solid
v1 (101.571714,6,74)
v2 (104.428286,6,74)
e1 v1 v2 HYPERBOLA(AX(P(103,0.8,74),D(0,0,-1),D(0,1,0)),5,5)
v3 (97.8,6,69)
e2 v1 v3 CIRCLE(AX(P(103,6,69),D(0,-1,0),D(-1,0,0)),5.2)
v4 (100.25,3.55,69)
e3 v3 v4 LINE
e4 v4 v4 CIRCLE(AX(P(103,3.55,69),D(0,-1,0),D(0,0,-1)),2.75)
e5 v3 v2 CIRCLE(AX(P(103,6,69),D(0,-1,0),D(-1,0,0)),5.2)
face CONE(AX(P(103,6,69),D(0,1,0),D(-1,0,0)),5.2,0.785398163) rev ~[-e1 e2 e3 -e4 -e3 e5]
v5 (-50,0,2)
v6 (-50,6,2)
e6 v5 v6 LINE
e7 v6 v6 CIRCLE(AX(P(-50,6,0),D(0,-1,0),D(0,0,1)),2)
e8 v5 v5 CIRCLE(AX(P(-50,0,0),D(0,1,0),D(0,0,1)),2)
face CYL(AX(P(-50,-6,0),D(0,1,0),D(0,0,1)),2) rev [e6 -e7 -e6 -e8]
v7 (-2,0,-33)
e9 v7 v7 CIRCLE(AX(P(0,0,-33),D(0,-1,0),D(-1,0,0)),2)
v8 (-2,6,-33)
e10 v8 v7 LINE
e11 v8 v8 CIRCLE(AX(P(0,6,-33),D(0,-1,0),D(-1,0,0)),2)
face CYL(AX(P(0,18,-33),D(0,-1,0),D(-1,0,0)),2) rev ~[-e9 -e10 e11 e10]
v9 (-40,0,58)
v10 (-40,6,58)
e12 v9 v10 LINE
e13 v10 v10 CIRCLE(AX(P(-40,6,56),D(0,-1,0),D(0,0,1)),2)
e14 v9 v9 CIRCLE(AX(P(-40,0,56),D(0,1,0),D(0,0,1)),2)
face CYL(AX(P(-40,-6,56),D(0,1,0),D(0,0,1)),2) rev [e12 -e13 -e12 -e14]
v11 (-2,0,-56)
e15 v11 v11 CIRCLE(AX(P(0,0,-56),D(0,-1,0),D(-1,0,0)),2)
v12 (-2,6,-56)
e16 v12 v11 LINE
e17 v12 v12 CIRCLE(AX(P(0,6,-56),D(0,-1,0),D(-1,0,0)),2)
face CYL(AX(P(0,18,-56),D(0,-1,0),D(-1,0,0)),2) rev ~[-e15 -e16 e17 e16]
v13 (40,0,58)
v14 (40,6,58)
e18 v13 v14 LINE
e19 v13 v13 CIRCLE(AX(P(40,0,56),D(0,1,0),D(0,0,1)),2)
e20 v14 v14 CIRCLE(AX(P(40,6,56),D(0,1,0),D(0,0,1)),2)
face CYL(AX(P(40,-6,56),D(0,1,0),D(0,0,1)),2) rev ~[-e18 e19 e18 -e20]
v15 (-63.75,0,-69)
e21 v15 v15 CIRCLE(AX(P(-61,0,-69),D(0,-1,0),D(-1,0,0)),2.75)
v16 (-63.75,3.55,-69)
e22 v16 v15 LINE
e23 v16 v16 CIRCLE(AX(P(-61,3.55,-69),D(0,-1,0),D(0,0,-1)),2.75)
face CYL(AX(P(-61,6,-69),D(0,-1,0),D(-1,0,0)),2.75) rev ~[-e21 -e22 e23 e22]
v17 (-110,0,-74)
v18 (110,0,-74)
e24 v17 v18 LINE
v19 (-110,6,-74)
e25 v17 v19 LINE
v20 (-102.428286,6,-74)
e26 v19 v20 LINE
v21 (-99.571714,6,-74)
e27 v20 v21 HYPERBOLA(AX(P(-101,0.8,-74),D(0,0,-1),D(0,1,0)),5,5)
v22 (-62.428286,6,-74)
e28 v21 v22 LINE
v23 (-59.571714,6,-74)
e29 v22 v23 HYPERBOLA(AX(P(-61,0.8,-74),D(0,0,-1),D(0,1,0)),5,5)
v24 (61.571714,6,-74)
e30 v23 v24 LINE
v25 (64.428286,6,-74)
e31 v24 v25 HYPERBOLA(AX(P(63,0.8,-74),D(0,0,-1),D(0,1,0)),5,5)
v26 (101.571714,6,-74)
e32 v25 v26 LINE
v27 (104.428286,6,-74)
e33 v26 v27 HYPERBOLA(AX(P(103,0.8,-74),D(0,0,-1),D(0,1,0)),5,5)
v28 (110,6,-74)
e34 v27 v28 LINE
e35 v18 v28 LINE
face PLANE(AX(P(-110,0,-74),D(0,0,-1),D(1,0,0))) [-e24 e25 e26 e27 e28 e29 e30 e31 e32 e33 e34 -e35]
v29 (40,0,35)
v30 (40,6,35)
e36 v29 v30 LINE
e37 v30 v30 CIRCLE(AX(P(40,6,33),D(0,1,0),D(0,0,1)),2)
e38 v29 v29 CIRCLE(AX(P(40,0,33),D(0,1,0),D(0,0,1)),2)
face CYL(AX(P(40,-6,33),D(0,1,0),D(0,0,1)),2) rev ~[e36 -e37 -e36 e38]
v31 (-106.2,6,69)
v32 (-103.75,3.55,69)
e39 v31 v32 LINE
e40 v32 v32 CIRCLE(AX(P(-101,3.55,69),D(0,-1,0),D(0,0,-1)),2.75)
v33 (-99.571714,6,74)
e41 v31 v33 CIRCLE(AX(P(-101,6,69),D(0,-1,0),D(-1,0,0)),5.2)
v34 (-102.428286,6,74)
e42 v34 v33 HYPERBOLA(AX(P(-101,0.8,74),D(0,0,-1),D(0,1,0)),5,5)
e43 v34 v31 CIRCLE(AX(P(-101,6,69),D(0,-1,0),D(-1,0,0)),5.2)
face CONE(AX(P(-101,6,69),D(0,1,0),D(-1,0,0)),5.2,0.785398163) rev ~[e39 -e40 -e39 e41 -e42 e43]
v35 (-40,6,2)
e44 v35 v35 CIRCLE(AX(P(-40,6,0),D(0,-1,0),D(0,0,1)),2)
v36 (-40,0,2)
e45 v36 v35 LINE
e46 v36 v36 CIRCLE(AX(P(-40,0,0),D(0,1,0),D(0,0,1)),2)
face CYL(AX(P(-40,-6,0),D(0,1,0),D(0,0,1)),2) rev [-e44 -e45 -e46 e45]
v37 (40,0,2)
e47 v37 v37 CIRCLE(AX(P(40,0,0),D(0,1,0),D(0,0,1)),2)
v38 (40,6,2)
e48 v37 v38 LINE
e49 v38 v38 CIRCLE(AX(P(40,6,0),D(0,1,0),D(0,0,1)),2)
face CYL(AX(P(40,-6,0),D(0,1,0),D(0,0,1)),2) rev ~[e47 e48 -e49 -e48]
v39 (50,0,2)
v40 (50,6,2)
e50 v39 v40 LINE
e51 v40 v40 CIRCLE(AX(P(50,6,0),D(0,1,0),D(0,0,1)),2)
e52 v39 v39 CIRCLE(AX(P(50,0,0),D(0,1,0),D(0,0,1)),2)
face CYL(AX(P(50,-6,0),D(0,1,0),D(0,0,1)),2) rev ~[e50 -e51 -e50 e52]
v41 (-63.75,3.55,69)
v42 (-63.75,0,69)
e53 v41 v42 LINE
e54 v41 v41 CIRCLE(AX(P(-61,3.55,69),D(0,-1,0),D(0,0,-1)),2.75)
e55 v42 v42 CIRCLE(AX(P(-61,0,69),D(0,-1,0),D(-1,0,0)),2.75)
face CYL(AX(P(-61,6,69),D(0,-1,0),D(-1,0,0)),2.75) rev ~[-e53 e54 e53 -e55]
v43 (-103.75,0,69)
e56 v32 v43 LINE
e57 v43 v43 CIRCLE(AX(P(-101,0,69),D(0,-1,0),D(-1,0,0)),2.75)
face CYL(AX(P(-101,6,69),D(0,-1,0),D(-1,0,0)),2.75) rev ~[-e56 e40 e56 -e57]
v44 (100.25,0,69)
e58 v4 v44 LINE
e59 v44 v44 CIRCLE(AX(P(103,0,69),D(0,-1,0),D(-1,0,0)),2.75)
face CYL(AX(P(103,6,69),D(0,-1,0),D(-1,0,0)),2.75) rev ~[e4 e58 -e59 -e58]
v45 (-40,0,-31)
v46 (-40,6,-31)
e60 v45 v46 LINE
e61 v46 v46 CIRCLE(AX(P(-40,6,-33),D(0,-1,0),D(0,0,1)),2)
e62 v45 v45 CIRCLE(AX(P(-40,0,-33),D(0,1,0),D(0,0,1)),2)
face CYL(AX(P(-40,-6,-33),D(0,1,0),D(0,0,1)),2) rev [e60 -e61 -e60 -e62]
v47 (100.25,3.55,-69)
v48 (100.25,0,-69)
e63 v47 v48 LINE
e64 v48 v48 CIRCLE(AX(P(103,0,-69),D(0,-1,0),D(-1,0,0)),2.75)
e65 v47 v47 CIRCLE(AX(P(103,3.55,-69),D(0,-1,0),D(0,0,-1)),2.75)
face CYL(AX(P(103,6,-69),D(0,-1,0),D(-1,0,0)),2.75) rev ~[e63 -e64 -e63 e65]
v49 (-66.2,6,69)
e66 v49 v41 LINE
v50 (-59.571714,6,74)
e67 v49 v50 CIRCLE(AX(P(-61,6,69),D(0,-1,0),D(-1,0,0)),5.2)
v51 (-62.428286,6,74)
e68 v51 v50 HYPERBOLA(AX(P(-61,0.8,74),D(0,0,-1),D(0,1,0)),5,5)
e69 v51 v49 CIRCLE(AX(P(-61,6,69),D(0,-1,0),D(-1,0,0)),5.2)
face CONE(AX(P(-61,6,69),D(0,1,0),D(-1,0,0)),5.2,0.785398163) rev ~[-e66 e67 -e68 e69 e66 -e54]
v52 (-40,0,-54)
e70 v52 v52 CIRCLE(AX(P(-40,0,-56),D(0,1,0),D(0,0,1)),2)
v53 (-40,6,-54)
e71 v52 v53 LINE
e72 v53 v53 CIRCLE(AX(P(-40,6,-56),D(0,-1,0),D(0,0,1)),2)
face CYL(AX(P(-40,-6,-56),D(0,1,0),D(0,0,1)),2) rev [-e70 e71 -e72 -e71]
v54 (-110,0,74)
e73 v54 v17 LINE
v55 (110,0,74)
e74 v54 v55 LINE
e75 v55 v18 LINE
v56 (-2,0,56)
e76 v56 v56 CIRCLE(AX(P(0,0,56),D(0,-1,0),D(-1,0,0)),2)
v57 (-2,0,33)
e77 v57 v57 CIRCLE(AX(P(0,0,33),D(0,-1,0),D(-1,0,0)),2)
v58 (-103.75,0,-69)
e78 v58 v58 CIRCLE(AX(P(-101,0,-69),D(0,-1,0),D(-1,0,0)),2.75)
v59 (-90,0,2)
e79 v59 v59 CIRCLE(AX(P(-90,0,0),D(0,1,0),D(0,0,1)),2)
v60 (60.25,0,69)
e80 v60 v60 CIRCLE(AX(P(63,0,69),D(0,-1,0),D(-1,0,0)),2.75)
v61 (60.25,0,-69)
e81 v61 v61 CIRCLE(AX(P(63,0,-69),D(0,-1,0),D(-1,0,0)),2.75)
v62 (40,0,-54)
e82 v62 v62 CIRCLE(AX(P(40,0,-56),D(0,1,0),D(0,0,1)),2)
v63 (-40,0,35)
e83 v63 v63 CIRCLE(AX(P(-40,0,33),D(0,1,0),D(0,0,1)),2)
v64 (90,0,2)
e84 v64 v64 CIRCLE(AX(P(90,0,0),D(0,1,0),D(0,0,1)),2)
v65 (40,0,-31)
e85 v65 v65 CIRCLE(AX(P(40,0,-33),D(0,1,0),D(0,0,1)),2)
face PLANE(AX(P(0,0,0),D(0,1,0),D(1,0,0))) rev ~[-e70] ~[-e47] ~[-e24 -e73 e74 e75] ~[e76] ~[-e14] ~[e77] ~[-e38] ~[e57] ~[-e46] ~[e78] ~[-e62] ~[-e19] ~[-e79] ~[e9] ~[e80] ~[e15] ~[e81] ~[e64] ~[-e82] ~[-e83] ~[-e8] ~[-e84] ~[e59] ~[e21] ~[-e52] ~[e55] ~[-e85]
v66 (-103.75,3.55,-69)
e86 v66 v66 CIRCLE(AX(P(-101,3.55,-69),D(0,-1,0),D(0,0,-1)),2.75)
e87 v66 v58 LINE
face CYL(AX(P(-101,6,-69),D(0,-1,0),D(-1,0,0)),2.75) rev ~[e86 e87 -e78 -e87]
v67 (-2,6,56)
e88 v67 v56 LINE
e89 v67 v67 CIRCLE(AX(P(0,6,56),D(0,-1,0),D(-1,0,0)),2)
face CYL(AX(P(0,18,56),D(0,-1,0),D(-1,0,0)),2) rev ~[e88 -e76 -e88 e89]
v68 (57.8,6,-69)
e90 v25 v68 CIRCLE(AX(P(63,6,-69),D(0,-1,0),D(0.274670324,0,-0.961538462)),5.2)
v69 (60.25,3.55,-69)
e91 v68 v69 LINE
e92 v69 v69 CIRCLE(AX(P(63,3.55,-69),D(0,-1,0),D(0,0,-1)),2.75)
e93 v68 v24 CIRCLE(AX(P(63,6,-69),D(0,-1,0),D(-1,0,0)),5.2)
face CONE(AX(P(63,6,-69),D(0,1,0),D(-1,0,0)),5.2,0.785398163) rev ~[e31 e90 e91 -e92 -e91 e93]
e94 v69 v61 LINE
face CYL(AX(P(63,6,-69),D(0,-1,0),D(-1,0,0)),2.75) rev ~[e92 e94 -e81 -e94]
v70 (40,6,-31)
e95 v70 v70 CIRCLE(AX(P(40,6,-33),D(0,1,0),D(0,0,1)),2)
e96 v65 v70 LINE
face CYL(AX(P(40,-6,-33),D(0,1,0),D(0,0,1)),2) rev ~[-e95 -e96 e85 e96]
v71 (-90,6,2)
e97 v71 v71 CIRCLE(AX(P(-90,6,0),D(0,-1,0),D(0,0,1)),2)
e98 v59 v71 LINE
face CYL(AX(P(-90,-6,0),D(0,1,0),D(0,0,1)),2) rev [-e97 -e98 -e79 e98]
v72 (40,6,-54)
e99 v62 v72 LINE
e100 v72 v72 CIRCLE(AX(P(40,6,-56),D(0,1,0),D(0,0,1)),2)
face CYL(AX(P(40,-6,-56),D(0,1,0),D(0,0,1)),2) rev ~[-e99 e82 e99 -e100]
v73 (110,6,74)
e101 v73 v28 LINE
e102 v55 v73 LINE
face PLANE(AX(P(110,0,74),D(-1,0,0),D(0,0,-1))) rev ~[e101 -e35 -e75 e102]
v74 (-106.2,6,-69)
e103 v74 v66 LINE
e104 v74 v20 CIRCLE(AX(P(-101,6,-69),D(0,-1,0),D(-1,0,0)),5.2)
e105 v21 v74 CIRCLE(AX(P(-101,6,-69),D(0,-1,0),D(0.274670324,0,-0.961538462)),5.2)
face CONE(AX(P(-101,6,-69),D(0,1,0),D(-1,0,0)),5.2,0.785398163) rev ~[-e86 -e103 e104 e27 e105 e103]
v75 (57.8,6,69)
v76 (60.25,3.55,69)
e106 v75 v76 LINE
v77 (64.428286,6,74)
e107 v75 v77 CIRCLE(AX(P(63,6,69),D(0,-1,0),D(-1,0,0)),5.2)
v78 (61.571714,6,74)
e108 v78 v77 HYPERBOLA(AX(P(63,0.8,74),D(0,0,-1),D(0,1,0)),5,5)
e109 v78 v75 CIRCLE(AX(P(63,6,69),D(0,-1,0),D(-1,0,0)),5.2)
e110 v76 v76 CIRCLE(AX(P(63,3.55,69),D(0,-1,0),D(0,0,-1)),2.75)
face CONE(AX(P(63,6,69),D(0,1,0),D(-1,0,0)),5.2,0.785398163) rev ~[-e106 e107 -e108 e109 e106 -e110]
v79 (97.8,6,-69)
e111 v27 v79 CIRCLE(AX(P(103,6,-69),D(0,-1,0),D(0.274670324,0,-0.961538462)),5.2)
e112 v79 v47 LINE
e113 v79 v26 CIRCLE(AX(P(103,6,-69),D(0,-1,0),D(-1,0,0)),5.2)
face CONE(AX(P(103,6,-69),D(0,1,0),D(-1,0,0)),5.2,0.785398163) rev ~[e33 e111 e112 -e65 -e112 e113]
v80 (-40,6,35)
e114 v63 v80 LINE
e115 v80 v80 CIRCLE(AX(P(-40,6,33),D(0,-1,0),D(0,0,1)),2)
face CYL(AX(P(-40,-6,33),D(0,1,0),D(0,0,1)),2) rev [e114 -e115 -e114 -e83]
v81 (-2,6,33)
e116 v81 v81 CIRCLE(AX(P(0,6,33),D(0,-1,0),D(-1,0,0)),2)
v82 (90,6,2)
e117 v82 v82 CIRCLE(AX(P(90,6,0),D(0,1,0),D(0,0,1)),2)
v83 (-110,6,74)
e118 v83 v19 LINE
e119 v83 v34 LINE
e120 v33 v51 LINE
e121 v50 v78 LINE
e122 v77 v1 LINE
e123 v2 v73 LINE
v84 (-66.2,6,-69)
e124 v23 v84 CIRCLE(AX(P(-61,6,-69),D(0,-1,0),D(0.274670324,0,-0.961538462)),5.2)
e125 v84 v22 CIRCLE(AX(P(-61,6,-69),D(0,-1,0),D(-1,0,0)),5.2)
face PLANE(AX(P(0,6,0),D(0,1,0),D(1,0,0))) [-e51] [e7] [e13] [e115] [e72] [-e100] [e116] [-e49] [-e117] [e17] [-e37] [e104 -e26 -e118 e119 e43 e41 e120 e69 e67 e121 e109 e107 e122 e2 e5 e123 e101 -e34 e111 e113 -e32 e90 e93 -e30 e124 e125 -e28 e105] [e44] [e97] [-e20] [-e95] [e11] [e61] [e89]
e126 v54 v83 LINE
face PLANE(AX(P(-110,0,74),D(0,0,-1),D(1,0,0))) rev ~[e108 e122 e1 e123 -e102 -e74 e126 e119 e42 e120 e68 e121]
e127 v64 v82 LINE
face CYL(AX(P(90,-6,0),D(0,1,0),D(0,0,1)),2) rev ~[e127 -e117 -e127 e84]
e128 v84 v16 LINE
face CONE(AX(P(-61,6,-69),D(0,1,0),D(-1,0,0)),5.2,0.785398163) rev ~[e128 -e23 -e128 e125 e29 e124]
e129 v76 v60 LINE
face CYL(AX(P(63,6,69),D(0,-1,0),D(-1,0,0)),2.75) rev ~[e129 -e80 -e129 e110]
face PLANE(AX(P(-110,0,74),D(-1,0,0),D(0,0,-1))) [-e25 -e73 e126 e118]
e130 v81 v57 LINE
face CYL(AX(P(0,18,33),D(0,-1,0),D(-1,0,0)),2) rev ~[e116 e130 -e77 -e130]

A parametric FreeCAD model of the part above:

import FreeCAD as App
import Part
import Sketcher
from FreeCAD import Vector
Q = App.Units.Quantity

doc = App.newDocument("Part")
body = doc.addObject("PartDesign::Body", "Body")

# Sketch on XZ plane
sketch1 = doc.addObject("Sketcher::SketchObject", "Sketch")
body.addObject(sketch1)
sketch1.AttachmentSupport = (doc.XZ_Plane, [""])
sketch1.MapMode = "FlatFace"
sketch1.addGeometry(Part.LineSegment(Vector(-110, -74, 0), Vector(-110, 74, 0)), False)
sketch1.addGeometry(Part.LineSegment(Vector(-110, 74, 0), Vector(110, 74, 0)), False)
sketch1.addGeometry(Part.LineSegment(Vector(110, 74, 0), Vector(110, -74, 0)), False)
sketch1.addGeometry(Part.LineSegment(Vector(110, -74, 0), Vector(-110, -74, 0)), False)
sketch1.addConstraint(Sketcher.Constraint("Coincident", 0, 2, 1, 1))
sketch1.addConstraint(Sketcher.Constraint("Coincident", 1, 2, 2, 1))
sketch1.addConstraint(Sketcher.Constraint("Coincident", 2, 2, 3, 1))
sketch1.addConstraint(Sketcher.Constraint("Coincident", 3, 2, 0, 1))
sketch1.addConstraint(Sketcher.Constraint("Vertical", 0))
sketch1.addConstraint(Sketcher.Constraint("Horizontal", 1))
sketch1.addConstraint(Sketcher.Constraint("Vertical", 2))
sketch1.addConstraint(Sketcher.Constraint("Horizontal", 3))
sketch1.addConstraint(Sketcher.Constraint("Symmetric", 0, 2, 2, 2, -1, 1))
sketch1.addConstraint(Sketcher.Constraint("DistanceX", 1, 1, 1, 2, Q("220 mm")))
sketch1.addConstraint(Sketcher.Constraint("DistanceY", 0, 1, 0, 2, Q("148 mm")))
pad1 = doc.addObject("PartDesign::Pad", "Pad")
body.addObject(pad1)
pad1.Profile = sketch1
pad1.Length = 6
pad1.Reversed = True

# Sketch on XZ plane
sketch2 = doc.addObject("Sketcher::SketchObject", "Sketch001")
body.addObject(sketch2)
sketch2.AttachmentSupport = (doc.XZ_Plane, [""])
sketch2.MapMode = "FlatFace"
sketch2.AttachmentOffset = App.Placement(Vector(0, 0, -6), App.Rotation())
sketch2.addGeometry(Part.Circle(Vector(103, 69, 0), Vector(0, 0, 1), 2.8), False)
sketch2.addGeometry(Part.Circle(Vector(63, 69, 0), Vector(0, 0, 1), 2.8), False)
sketch2.addGeometry(Part.Circle(Vector(-101, 69, 0), Vector(0, 0, 1), 2.8), False)
sketch2.addGeometry(Part.Circle(Vector(-61, 69, 0), Vector(0, 0, 1), 2.8), False)
sketch2.addGeometry(Part.Circle(Vector(103, -69, 0), Vector(0, 0, 1), 2.8), False)
sketch2.addGeometry(Part.Circle(Vector(63, -69, 0), Vector(0, 0, 1), 2.8), False)
sketch2.addGeometry(Part.Circle(Vector(-61, -69, 0), Vector(0, 0, 1), 2.8), False)
sketch2.addGeometry(Part.Circle(Vector(-101, -69, 0), Vector(0, 0, 1), 2.8), False)
sketch2.addConstraint(Sketcher.Constraint("Equal", 0, 1))
sketch2.addConstraint(Sketcher.Constraint("Equal", 1, 2))
sketch2.addConstraint(Sketcher.Constraint("Equal", 2, 3))
sketch2.addConstraint(Sketcher.Constraint("Equal", 3, 4))
sketch2.addConstraint(Sketcher.Constraint("Equal", 4, 5))
sketch2.addConstraint(Sketcher.Constraint("Equal", 5, 6))
sketch2.addConstraint(Sketcher.Constraint("Equal", 6, 7))
sketch2.addConstraint(Sketcher.Constraint("Symmetric", 0, 3, 4, 3, -1))
sketch2.addConstraint(Sketcher.Constraint("Symmetric", 1, 3, 5, 3, -1))
sketch2.addConstraint(Sketcher.Constraint("Symmetric", 3, 3, 6, 3, -1))
sketch2.addConstraint(Sketcher.Constraint("Symmetric", 2, 3, 7, 3, -1))
sketch2.addConstraint(Sketcher.Constraint("Horizontal", 0, 3, 1, 3))
sketch2.addConstraint(Sketcher.Constraint("Horizontal", 1, 3, 2, 3))
sketch2.addConstraint(Sketcher.Constraint("Horizontal", 2, 3, 3, 3))
sketch2.addConstraint(Sketcher.Constraint("Diameter", 0, Q("5.5 mm")))
sketch2.addConstraint(Sketcher.Constraint("DistanceX", -1, 1, 0, 3, Q("103 mm")))
sketch2.addConstraint(Sketcher.Constraint("DistanceY", -1, 1, 0, 3, Q("69 mm")))
sketch2.addConstraint(Sketcher.Constraint("DistanceX", -1, 1, 1, 3, Q("63 mm")))
sketch2.addConstraint(Sketcher.Constraint("DistanceX", 2, 3, -1, 1, Q("101 mm")))
sketch2.addConstraint(Sketcher.Constraint("DistanceX", 3, 3, -1, 1, Q("61 mm")))
doc.recompute()
hole = doc.addObject("PartDesign::Hole", "Hole")
body.addObject(hole)
hole.Profile = sketch2
hole.ThreadType = "None"
hole.Diameter = 5.5
hole.DepthType = "ThroughAll"
hole.HoleCutType = "Countersink"
hole.HoleCutDiameter = 10.4
hole.HoleCutCountersinkAngle = 90
hole.Reversed = True

# Sketch on XZ plane
sketch3 = doc.addObject("Sketcher::SketchObject", "Sketch002")
body.addObject(sketch3)
sketch3.AttachmentSupport = (doc.XZ_Plane, [""])
sketch3.MapMode = "FlatFace"
sketch3.AttachmentOffset = App.Placement(Vector(0, 0, -6), App.Rotation())
sketch3.addGeometry(Part.Circle(Vector(0, -56, 0), Vector(0, 0, 1), 2), False)
sketch3.addGeometry(Part.Circle(Vector(0, -33, 0), Vector(0, 0, 1), 2), False)
sketch3.addGeometry(Part.Circle(Vector(0, 33, 0), Vector(0, 0, 1), 2), False)
sketch3.addGeometry(Part.Circle(Vector(0, 56, 0), Vector(0, 0, 1), 2), False)
sketch3.addConstraint(Sketcher.Constraint("Equal", 0, 1))
sketch3.addConstraint(Sketcher.Constraint("Equal", 1, 2))
sketch3.addConstraint(Sketcher.Constraint("Equal", 2, 3))
sketch3.addConstraint(Sketcher.Constraint("Symmetric", 1, 3, 2, 3, -1, 1))
sketch3.addConstraint(Sketcher.Constraint("Symmetric", 0, 3, 3, 3, -1, 1))
sketch3.addConstraint(Sketcher.Constraint("PointOnObject", 0, 3, -2))
sketch3.addConstraint(Sketcher.Constraint("PointOnObject", 1, 3, -2))
sketch3.addConstraint(Sketcher.Constraint("Diameter", 0, Q("4 mm")))
sketch3.addConstraint(Sketcher.Constraint("DistanceY", 0, 3, -1, 1, Q("56 mm")))
sketch3.addConstraint(Sketcher.Constraint("DistanceY", 1, 3, -1, 1, Q("33 mm")))
doc.recompute()
hole2 = doc.addObject("PartDesign::Hole", "Hole001")
body.addObject(hole2)
hole2.Profile = sketch3
hole2.ThreadType = "None"
hole2.Diameter = 4
hole2.DepthType = "Dimension"
hole2.Depth = 12
hole2.DrillPoint = "Angled"
hole2.DrillPointAngle = 118
hole2.Reversed = True

# Sketch on YZ plane
sketch4 = doc.addObject("Sketcher::SketchObject", "Sketch003")
body.addObject(sketch4)
sketch4.AttachmentSupport = (doc.YZ_Plane, [""])
sketch4.MapMode = "FlatFace"
sketch4.AttachmentOffset = App.Placement(Vector(0, 0, -40), App.Rotation())
sketch4.addGeometry(Part.LineSegment(Vector(-7.2, -33, 0), Vector(6, -33, 0)), False)
sketch4.addGeometry(Part.LineSegment(Vector(6, -33, 0), Vector(6, -31, 0)), False)
sketch4.addGeometry(Part.LineSegment(Vector(6, -31, 0), Vector(-6, -31, 0)), False)
sketch4.addGeometry(Part.LineSegment(Vector(-6, -31, 0), Vector(-7.2, -33, 0)), False)
sketch4.addGeometry(Part.LineSegment(Vector(6, -33, 0), Vector(-7.2, -33, 0)), True)  # axis
sketch4.addConstraint(Sketcher.Constraint("Coincident", 0, 2, 1, 1))
sketch4.addConstraint(Sketcher.Constraint("Coincident", 1, 2, 2, 1))
sketch4.addConstraint(Sketcher.Constraint("Coincident", 2, 2, 3, 1))
sketch4.addConstraint(Sketcher.Constraint("Coincident", 3, 2, 0, 1))
sketch4.addConstraint(Sketcher.Constraint("Horizontal", 0))
sketch4.addConstraint(Sketcher.Constraint("Vertical", 1))
sketch4.addConstraint(Sketcher.Constraint("Horizontal", 2))
sketch4.addConstraint(Sketcher.Constraint("Horizontal", 4))
sketch4.addConstraint(Sketcher.Constraint("Coincident", 4, 1, 0, 2))
sketch4.addConstraint(Sketcher.Constraint("Equal", 0, 4))
sketch4.addConstraint(Sketcher.Constraint("DistanceX", 2, 2, 2, 1, Q("12 mm")))
sketch4.addConstraint(Sketcher.Constraint("DistanceY", 1, 1, 1, 2, Q("2 mm")))
sketch4.addConstraint(Sketcher.Constraint("Angle", 3, Q("-121 deg")))
sketch4.addConstraint(Sketcher.Constraint("DistanceX", -1, 1, 0, 2, Q("6 mm")))
sketch4.addConstraint(Sketcher.Constraint("DistanceY", 0, 2, -1, 1, Q("33 mm")))
groove = doc.addObject("PartDesign::Groove", "Groove")
body.addObject(groove)
groove.Profile = sketch4
groove.ReferenceAxis = (sketch4, ["Axis0"])
groove.Angle = 360
doc.recompute()

linearpattern = doc.addObject("PartDesign::LinearPattern", "LinearPattern")
body.addObject(linearpattern)
linearpattern.Originals = [groove]
linearpattern.Direction = (doc.Z_Axis, [""])
linearpattern.Mode = "offset"
linearpattern.Offset = 23
linearpattern.Occurrences = 2
linearpattern.Reversed = True
body.Tip = linearpattern
doc.recompute()

linearpattern2 = doc.addObject("PartDesign::LinearPattern", "LinearPattern001")
body.addObject(linearpattern2)
linearpattern2.Originals = [groove]
linearpattern2.Direction = (doc.Z_Axis, [""])
linearpattern2.Mode = "offset"
linearpattern2.Offset = 33
linearpattern2.Occurrences = 2
body.Tip = linearpattern2
doc.recompute()

datumline = doc.addObject("PartDesign::Line", "DatumLine")
body.addObject(datumline)
datumline.Placement = App.Placement(Vector(0, 0, 0), App.Rotation(Vector(0, 0, 1), Vector(-0.290007395, 0, 0.957024404)))
linearpattern3 = doc.addObject("PartDesign::LinearPattern", "LinearPattern002")
body.addObject(linearpattern3)
linearpattern3.Originals = [groove]
linearpattern3.Direction = (datumline, [""])
linearpattern3.Mode = "offset"
linearpattern3.Offset = 34.481879
linearpattern3.Occurrences = 2
body.Tip = linearpattern3
doc.recompute()

datumline2 = doc.addObject("PartDesign::Line", "DatumLine001")
body.addObject(datumline2)
datumline2.Placement = App.Placement(Vector(0, 0, 0), App.Rotation(Vector(0, 0, 1), Vector(-0.834609407, 0, 0.550842208)))
linearpattern4 = doc.addObject("PartDesign::LinearPattern", "LinearPattern003")
body.addObject(linearpattern4)
linearpattern4.Originals = [groove]
linearpattern4.Direction = (datumline2, [""])
linearpattern4.Mode = "offset"
linearpattern4.Offset = 59.908263
linearpattern4.Occurrences = 2
body.Tip = linearpattern4
doc.recompute()

linearpattern5 = doc.addObject("PartDesign::LinearPattern", "LinearPattern004")
body.addObject(linearpattern5)
linearpattern5.Originals = [groove]
linearpattern5.Direction = (doc.Z_Axis, [""])
linearpattern5.Mode = "offset"
linearpattern5.Offset = 89
linearpattern5.Occurrences = 2
body.Tip = linearpattern5
doc.recompute()

linearpattern6 = doc.addObject("PartDesign::LinearPattern", "LinearPattern005")
body.addObject(linearpattern6)
linearpattern6.Originals = [groove]
linearpattern6.Direction = (doc.Z_Axis, [""])
linearpattern6.Mode = "offset"
linearpattern6.Offset = 66
linearpattern6.Occurrences = 2
body.Tip = linearpattern6
doc.recompute()

mirrored = doc.addObject("PartDesign::Mirrored", "Mirrored")
body.addObject(mirrored)
mirrored.Originals = [groove]
mirrored.MirrorPlane = (doc.YZ_Plane, [""])
body.Tip = mirrored

# Sketch on YZ plane
sketch5 = doc.addObject("Sketcher::SketchObject", "Sketch004")
body.addObject(sketch5)
sketch5.AttachmentSupport = (doc.YZ_Plane, [""])
sketch5.MapMode = "FlatFace"
sketch5.AttachmentOffset = App.Placement(Vector(0, 0, 40), App.Rotation())
sketch5.addGeometry(Part.LineSegment(Vector(6, -56, 0), Vector(-7.2, -56, 0)), False)
sketch5.addGeometry(Part.LineSegment(Vector(-7.2, -56, 0), Vector(-6, -54, 0)), False)
sketch5.addGeometry(Part.LineSegment(Vector(-6, -54, 0), Vector(6, -54, 0)), False)
sketch5.addGeometry(Part.LineSegment(Vector(6, -54, 0), Vector(6, -56, 0)), False)
sketch5.addGeometry(Part.LineSegment(Vector(-7.2, -56, 0), Vector(6, -56, 0)), True)  # axis
sketch5.addConstraint(Sketcher.Constraint("Coincident", 0, 2, 1, 1))
sketch5.addConstraint(Sketcher.Constraint("Coincident", 1, 2, 2, 1))
sketch5.addConstraint(Sketcher.Constraint("Coincident", 2, 2, 3, 1))
sketch5.addConstraint(Sketcher.Constraint("Coincident", 3, 2, 0, 1))
sketch5.addConstraint(Sketcher.Constraint("Horizontal", 0))
sketch5.addConstraint(Sketcher.Constraint("Horizontal", 2))
sketch5.addConstraint(Sketcher.Constraint("Vertical", 3))
sketch5.addConstraint(Sketcher.Constraint("Horizontal", 4))
sketch5.addConstraint(Sketcher.Constraint("Coincident", 4, 1, 0, 2))
sketch5.addConstraint(Sketcher.Constraint("Vertical", 2, 2, 4, 2))
sketch5.addConstraint(Sketcher.Constraint("DistanceX", 2, 1, 2, 2, Q("12 mm")))
sketch5.addConstraint(Sketcher.Constraint("DistanceY", 3, 2, 3, 1, Q("2 mm")))
sketch5.addConstraint(Sketcher.Constraint("Angle", 1, Q("59 deg")))
sketch5.addConstraint(Sketcher.Constraint("DistanceY", 0, 2, -1, 1, Q("56 mm")))
sketch5.addConstraint(Sketcher.Constraint("DistanceX", 1, 2, -1, 1, Q("6 mm")))
groove2 = doc.addObject("PartDesign::Groove", "Groove001")
body.addObject(groove2)
groove2.Profile = sketch5
groove2.ReferenceAxis = (sketch5, ["Axis0"])
groove2.Angle = 360

# Sketch on YZ plane
sketch6 = doc.addObject("Sketcher::SketchObject", "Sketch005")
body.addObject(sketch6)
sketch6.AttachmentSupport = (doc.YZ_Plane, [""])
sketch6.MapMode = "FlatFace"
sketch6.AttachmentOffset = App.Placement(Vector(0, 0, 40), App.Rotation())
sketch6.addGeometry(Part.LineSegment(Vector(6, 0, 0), Vector(-7.2, 0, 0)), False)
sketch6.addGeometry(Part.LineSegment(Vector(-7.2, 0, 0), Vector(-6, 2, 0)), False)
sketch6.addGeometry(Part.LineSegment(Vector(-6, 2, 0), Vector(6, 2, 0)), False)
sketch6.addGeometry(Part.LineSegment(Vector(6, 2, 0), Vector(6, 0, 0)), False)
sketch6.addConstraint(Sketcher.Constraint("Coincident", 0, 2, 1, 1))
sketch6.addConstraint(Sketcher.Constraint("Coincident", 1, 2, 2, 1))
sketch6.addConstraint(Sketcher.Constraint("Coincident", 2, 2, 3, 1))
sketch6.addConstraint(Sketcher.Constraint("Coincident", 3, 2, 0, 1))
sketch6.addConstraint(Sketcher.Constraint("Horizontal", 0))
sketch6.addConstraint(Sketcher.Constraint("Horizontal", 2))
sketch6.addConstraint(Sketcher.Constraint("Vertical", 3))
sketch6.addConstraint(Sketcher.Constraint("PointOnObject", 0, 2, -1))
sketch6.addConstraint(Sketcher.Constraint("DistanceX", 2, 1, 2, 2, Q("12 mm")))
sketch6.addConstraint(Sketcher.Constraint("DistanceY", 3, 2, 3, 1, Q("2 mm")))
sketch6.addConstraint(Sketcher.Constraint("Angle", 1, Q("59 deg")))
sketch6.addConstraint(Sketcher.Constraint("DistanceX", 1, 2, -1, 1, Q("6 mm")))
groove3 = doc.addObject("PartDesign::Groove", "Groove002")
body.addObject(groove3)
groove3.Profile = sketch6
groove3.ReferenceAxis = (sketch6, ["H_Axis"])
groove3.Angle = 360

# Sketch on YZ plane
sketch7 = doc.addObject("Sketcher::SketchObject", "Sketch006")
body.addObject(sketch7)
sketch7.AttachmentSupport = (doc.YZ_Plane, [""])
sketch7.MapMode = "FlatFace"
sketch7.AttachmentOffset = App.Placement(Vector(0, 0, 50), App.Rotation())
sketch7.addGeometry(Part.LineSegment(Vector(6, 0, 0), Vector(-7.2, 0, 0)), False)
sketch7.addGeometry(Part.LineSegment(Vector(-7.2, 0, 0), Vector(-6, 2, 0)), False)
sketch7.addGeometry(Part.LineSegment(Vector(-6, 2, 0), Vector(6, 2, 0)), False)
sketch7.addGeometry(Part.LineSegment(Vector(6, 2, 0), Vector(6, 0, 0)), False)
sketch7.addConstraint(Sketcher.Constraint("Coincident", 0, 2, 1, 1))
sketch7.addConstraint(Sketcher.Constraint("Coincident", 1, 2, 2, 1))
sketch7.addConstraint(Sketcher.Constraint("Coincident", 2, 2, 3, 1))
sketch7.addConstraint(Sketcher.Constraint("Coincident", 3, 2, 0, 1))
sketch7.addConstraint(Sketcher.Constraint("Horizontal", 0))
sketch7.addConstraint(Sketcher.Constraint("Horizontal", 2))
sketch7.addConstraint(Sketcher.Constraint("Vertical", 3))
sketch7.addConstraint(Sketcher.Constraint("PointOnObject", 0, 2, -1))
sketch7.addConstraint(Sketcher.Constraint("DistanceX", 2, 1, 2, 2, Q("12 mm")))
sketch7.addConstraint(Sketcher.Constraint("DistanceY", 3, 2, 3, 1, Q("2 mm")))
sketch7.addConstraint(Sketcher.Constraint("Angle", 1, Q("59 deg")))
sketch7.addConstraint(Sketcher.Constraint("DistanceX", 1, 2, -1, 1, Q("6 mm")))
groove4 = doc.addObject("PartDesign::Groove", "Groove003")
body.addObject(groove4)
groove4.Profile = sketch7
groove4.ReferenceAxis = (sketch7, ["H_Axis"])
groove4.Angle = 360

# Sketch on YZ plane
sketch8 = doc.addObject("Sketcher::SketchObject", "Sketch007")
body.addObject(sketch8)
sketch8.AttachmentSupport = (doc.YZ_Plane, [""])
sketch8.MapMode = "FlatFace"
sketch8.AttachmentOffset = App.Placement(Vector(0, 0, 90), App.Rotation())
sketch8.addGeometry(Part.LineSegment(Vector(6, 0, 0), Vector(-7.2, 0, 0)), False)
sketch8.addGeometry(Part.LineSegment(Vector(-7.2, 0, 0), Vector(-6, 2, 0)), False)
sketch8.addGeometry(Part.LineSegment(Vector(-6, 2, 0), Vector(6, 2, 0)), False)
sketch8.addGeometry(Part.LineSegment(Vector(6, 2, 0), Vector(6, 0, 0)), False)
sketch8.addConstraint(Sketcher.Constraint("Coincident", 0, 2, 1, 1))
sketch8.addConstraint(Sketcher.Constraint("Coincident", 1, 2, 2, 1))
sketch8.addConstraint(Sketcher.Constraint("Coincident", 2, 2, 3, 1))
sketch8.addConstraint(Sketcher.Constraint("Coincident", 3, 2, 0, 1))
sketch8.addConstraint(Sketcher.Constraint("Horizontal", 0))
sketch8.addConstraint(Sketcher.Constraint("Horizontal", 2))
sketch8.addConstraint(Sketcher.Constraint("Vertical", 3))
sketch8.addConstraint(Sketcher.Constraint("PointOnObject", 0, 2, -1))
sketch8.addConstraint(Sketcher.Constraint("DistanceX", 2, 1, 2, 2, Q("12 mm")))
sketch8.addConstraint(Sketcher.Constraint("DistanceY", 3, 2, 3, 1, Q("2 mm")))
sketch8.addConstraint(Sketcher.Constraint("Angle", 1, Q("59 deg")))
sketch8.addConstraint(Sketcher.Constraint("DistanceX", 1, 2, -1, 1, Q("6 mm")))
groove5 = doc.addObject("PartDesign::Groove", "Groove004")
body.addObject(groove5)
groove5.Profile = sketch8
groove5.ReferenceAxis = (sketch8, ["H_Axis"])
groove5.Angle = 360

# Sketch on YZ plane
sketch9 = doc.addObject("Sketcher::SketchObject", "Sketch008")
body.addObject(sketch9)
sketch9.AttachmentSupport = (doc.YZ_Plane, [""])
sketch9.MapMode = "FlatFace"
sketch9.AttachmentOffset = App.Placement(Vector(0, 0, 40), App.Rotation())
sketch9.addGeometry(Part.LineSegment(Vector(6, 56, 0), Vector(-7.2, 56, 0)), False)
sketch9.addGeometry(Part.LineSegment(Vector(-7.2, 56, 0), Vector(-6, 58, 0)), False)
sketch9.addGeometry(Part.LineSegment(Vector(-6, 58, 0), Vector(6, 58, 0)), False)
sketch9.addGeometry(Part.LineSegment(Vector(6, 58, 0), Vector(6, 56, 0)), False)
sketch9.addGeometry(Part.LineSegment(Vector(-7.2, 56, 0), Vector(6, 56, 0)), True)  # axis
sketch9.addConstraint(Sketcher.Constraint("Coincident", 0, 2, 1, 1))
sketch9.addConstraint(Sketcher.Constraint("Coincident", 1, 2, 2, 1))
sketch9.addConstraint(Sketcher.Constraint("Coincident", 2, 2, 3, 1))
sketch9.addConstraint(Sketcher.Constraint("Coincident", 3, 2, 0, 1))
sketch9.addConstraint(Sketcher.Constraint("Horizontal", 0))
sketch9.addConstraint(Sketcher.Constraint("Horizontal", 2))
sketch9.addConstraint(Sketcher.Constraint("Vertical", 3))
sketch9.addConstraint(Sketcher.Constraint("Horizontal", 4))
sketch9.addConstraint(Sketcher.Constraint("Coincident", 4, 1, 0, 2))
sketch9.addConstraint(Sketcher.Constraint("Vertical", 2, 2, 4, 2))
sketch9.addConstraint(Sketcher.Constraint("DistanceX", 2, 1, 2, 2, Q("12 mm")))
sketch9.addConstraint(Sketcher.Constraint("DistanceY", 3, 2, 3, 1, Q("2 mm")))
sketch9.addConstraint(Sketcher.Constraint("Angle", 1, Q("59 deg")))
sketch9.addConstraint(Sketcher.Constraint("DistanceY", -1, 1, 0, 2, Q("56 mm")))
sketch9.addConstraint(Sketcher.Constraint("DistanceX", 1, 2, -1, 1, Q("6 mm")))
groove6 = doc.addObject("PartDesign::Groove", "Groove005")
body.addObject(groove6)
groove6.Profile = sketch9
groove6.ReferenceAxis = (sketch9, ["Axis0"])
groove6.Angle = 360

# Sketch on YZ plane
sketch10 = doc.addObject("Sketcher::SketchObject", "Sketch009")
body.addObject(sketch10)
sketch10.AttachmentSupport = (doc.YZ_Plane, [""])
sketch10.MapMode = "FlatFace"
sketch10.AttachmentOffset = App.Placement(Vector(0, 0, 40), App.Rotation())
sketch10.addGeometry(Part.LineSegment(Vector(6, 33, 0), Vector(-7.2, 33, 0)), False)
sketch10.addGeometry(Part.LineSegment(Vector(-7.2, 33, 0), Vector(-6, 35, 0)), False)
sketch10.addGeometry(Part.LineSegment(Vector(-6, 35, 0), Vector(6, 35, 0)), False)
sketch10.addGeometry(Part.LineSegment(Vector(6, 35, 0), Vector(6, 33, 0)), False)
sketch10.addGeometry(Part.LineSegment(Vector(-7.2, 33, 0), Vector(6, 33, 0)), True)  # axis
sketch10.addConstraint(Sketcher.Constraint("Coincident", 0, 2, 1, 1))
sketch10.addConstraint(Sketcher.Constraint("Coincident", 1, 2, 2, 1))
sketch10.addConstraint(Sketcher.Constraint("Coincident", 2, 2, 3, 1))
sketch10.addConstraint(Sketcher.Constraint("Coincident", 3, 2, 0, 1))
sketch10.addConstraint(Sketcher.Constraint("Horizontal", 0))
sketch10.addConstraint(Sketcher.Constraint("Horizontal", 2))
sketch10.addConstraint(Sketcher.Constraint("Vertical", 3))
sketch10.addConstraint(Sketcher.Constraint("Horizontal", 4))
sketch10.addConstraint(Sketcher.Constraint("Coincident", 4, 1, 0, 2))
sketch10.addConstraint(Sketcher.Constraint("Vertical", 2, 2, 4, 2))
sketch10.addConstraint(Sketcher.Constraint("DistanceX", 2, 1, 2, 2, Q("12 mm")))
sketch10.addConstraint(Sketcher.Constraint("DistanceY", 3, 2, 3, 1, Q("2 mm")))
sketch10.addConstraint(Sketcher.Constraint("Angle", 1, Q("59 deg")))
sketch10.addConstraint(Sketcher.Constraint("DistanceY", -1, 1, 0, 2, Q("33 mm")))
sketch10.addConstraint(Sketcher.Constraint("DistanceX", 1, 2, -1, 1, Q("6 mm")))
groove7 = doc.addObject("PartDesign::Groove", "Groove006")
body.addObject(groove7)
groove7.Profile = sketch10
groove7.ReferenceAxis = (sketch10, ["Axis0"])
groove7.Angle = 360

doc.recompute()
